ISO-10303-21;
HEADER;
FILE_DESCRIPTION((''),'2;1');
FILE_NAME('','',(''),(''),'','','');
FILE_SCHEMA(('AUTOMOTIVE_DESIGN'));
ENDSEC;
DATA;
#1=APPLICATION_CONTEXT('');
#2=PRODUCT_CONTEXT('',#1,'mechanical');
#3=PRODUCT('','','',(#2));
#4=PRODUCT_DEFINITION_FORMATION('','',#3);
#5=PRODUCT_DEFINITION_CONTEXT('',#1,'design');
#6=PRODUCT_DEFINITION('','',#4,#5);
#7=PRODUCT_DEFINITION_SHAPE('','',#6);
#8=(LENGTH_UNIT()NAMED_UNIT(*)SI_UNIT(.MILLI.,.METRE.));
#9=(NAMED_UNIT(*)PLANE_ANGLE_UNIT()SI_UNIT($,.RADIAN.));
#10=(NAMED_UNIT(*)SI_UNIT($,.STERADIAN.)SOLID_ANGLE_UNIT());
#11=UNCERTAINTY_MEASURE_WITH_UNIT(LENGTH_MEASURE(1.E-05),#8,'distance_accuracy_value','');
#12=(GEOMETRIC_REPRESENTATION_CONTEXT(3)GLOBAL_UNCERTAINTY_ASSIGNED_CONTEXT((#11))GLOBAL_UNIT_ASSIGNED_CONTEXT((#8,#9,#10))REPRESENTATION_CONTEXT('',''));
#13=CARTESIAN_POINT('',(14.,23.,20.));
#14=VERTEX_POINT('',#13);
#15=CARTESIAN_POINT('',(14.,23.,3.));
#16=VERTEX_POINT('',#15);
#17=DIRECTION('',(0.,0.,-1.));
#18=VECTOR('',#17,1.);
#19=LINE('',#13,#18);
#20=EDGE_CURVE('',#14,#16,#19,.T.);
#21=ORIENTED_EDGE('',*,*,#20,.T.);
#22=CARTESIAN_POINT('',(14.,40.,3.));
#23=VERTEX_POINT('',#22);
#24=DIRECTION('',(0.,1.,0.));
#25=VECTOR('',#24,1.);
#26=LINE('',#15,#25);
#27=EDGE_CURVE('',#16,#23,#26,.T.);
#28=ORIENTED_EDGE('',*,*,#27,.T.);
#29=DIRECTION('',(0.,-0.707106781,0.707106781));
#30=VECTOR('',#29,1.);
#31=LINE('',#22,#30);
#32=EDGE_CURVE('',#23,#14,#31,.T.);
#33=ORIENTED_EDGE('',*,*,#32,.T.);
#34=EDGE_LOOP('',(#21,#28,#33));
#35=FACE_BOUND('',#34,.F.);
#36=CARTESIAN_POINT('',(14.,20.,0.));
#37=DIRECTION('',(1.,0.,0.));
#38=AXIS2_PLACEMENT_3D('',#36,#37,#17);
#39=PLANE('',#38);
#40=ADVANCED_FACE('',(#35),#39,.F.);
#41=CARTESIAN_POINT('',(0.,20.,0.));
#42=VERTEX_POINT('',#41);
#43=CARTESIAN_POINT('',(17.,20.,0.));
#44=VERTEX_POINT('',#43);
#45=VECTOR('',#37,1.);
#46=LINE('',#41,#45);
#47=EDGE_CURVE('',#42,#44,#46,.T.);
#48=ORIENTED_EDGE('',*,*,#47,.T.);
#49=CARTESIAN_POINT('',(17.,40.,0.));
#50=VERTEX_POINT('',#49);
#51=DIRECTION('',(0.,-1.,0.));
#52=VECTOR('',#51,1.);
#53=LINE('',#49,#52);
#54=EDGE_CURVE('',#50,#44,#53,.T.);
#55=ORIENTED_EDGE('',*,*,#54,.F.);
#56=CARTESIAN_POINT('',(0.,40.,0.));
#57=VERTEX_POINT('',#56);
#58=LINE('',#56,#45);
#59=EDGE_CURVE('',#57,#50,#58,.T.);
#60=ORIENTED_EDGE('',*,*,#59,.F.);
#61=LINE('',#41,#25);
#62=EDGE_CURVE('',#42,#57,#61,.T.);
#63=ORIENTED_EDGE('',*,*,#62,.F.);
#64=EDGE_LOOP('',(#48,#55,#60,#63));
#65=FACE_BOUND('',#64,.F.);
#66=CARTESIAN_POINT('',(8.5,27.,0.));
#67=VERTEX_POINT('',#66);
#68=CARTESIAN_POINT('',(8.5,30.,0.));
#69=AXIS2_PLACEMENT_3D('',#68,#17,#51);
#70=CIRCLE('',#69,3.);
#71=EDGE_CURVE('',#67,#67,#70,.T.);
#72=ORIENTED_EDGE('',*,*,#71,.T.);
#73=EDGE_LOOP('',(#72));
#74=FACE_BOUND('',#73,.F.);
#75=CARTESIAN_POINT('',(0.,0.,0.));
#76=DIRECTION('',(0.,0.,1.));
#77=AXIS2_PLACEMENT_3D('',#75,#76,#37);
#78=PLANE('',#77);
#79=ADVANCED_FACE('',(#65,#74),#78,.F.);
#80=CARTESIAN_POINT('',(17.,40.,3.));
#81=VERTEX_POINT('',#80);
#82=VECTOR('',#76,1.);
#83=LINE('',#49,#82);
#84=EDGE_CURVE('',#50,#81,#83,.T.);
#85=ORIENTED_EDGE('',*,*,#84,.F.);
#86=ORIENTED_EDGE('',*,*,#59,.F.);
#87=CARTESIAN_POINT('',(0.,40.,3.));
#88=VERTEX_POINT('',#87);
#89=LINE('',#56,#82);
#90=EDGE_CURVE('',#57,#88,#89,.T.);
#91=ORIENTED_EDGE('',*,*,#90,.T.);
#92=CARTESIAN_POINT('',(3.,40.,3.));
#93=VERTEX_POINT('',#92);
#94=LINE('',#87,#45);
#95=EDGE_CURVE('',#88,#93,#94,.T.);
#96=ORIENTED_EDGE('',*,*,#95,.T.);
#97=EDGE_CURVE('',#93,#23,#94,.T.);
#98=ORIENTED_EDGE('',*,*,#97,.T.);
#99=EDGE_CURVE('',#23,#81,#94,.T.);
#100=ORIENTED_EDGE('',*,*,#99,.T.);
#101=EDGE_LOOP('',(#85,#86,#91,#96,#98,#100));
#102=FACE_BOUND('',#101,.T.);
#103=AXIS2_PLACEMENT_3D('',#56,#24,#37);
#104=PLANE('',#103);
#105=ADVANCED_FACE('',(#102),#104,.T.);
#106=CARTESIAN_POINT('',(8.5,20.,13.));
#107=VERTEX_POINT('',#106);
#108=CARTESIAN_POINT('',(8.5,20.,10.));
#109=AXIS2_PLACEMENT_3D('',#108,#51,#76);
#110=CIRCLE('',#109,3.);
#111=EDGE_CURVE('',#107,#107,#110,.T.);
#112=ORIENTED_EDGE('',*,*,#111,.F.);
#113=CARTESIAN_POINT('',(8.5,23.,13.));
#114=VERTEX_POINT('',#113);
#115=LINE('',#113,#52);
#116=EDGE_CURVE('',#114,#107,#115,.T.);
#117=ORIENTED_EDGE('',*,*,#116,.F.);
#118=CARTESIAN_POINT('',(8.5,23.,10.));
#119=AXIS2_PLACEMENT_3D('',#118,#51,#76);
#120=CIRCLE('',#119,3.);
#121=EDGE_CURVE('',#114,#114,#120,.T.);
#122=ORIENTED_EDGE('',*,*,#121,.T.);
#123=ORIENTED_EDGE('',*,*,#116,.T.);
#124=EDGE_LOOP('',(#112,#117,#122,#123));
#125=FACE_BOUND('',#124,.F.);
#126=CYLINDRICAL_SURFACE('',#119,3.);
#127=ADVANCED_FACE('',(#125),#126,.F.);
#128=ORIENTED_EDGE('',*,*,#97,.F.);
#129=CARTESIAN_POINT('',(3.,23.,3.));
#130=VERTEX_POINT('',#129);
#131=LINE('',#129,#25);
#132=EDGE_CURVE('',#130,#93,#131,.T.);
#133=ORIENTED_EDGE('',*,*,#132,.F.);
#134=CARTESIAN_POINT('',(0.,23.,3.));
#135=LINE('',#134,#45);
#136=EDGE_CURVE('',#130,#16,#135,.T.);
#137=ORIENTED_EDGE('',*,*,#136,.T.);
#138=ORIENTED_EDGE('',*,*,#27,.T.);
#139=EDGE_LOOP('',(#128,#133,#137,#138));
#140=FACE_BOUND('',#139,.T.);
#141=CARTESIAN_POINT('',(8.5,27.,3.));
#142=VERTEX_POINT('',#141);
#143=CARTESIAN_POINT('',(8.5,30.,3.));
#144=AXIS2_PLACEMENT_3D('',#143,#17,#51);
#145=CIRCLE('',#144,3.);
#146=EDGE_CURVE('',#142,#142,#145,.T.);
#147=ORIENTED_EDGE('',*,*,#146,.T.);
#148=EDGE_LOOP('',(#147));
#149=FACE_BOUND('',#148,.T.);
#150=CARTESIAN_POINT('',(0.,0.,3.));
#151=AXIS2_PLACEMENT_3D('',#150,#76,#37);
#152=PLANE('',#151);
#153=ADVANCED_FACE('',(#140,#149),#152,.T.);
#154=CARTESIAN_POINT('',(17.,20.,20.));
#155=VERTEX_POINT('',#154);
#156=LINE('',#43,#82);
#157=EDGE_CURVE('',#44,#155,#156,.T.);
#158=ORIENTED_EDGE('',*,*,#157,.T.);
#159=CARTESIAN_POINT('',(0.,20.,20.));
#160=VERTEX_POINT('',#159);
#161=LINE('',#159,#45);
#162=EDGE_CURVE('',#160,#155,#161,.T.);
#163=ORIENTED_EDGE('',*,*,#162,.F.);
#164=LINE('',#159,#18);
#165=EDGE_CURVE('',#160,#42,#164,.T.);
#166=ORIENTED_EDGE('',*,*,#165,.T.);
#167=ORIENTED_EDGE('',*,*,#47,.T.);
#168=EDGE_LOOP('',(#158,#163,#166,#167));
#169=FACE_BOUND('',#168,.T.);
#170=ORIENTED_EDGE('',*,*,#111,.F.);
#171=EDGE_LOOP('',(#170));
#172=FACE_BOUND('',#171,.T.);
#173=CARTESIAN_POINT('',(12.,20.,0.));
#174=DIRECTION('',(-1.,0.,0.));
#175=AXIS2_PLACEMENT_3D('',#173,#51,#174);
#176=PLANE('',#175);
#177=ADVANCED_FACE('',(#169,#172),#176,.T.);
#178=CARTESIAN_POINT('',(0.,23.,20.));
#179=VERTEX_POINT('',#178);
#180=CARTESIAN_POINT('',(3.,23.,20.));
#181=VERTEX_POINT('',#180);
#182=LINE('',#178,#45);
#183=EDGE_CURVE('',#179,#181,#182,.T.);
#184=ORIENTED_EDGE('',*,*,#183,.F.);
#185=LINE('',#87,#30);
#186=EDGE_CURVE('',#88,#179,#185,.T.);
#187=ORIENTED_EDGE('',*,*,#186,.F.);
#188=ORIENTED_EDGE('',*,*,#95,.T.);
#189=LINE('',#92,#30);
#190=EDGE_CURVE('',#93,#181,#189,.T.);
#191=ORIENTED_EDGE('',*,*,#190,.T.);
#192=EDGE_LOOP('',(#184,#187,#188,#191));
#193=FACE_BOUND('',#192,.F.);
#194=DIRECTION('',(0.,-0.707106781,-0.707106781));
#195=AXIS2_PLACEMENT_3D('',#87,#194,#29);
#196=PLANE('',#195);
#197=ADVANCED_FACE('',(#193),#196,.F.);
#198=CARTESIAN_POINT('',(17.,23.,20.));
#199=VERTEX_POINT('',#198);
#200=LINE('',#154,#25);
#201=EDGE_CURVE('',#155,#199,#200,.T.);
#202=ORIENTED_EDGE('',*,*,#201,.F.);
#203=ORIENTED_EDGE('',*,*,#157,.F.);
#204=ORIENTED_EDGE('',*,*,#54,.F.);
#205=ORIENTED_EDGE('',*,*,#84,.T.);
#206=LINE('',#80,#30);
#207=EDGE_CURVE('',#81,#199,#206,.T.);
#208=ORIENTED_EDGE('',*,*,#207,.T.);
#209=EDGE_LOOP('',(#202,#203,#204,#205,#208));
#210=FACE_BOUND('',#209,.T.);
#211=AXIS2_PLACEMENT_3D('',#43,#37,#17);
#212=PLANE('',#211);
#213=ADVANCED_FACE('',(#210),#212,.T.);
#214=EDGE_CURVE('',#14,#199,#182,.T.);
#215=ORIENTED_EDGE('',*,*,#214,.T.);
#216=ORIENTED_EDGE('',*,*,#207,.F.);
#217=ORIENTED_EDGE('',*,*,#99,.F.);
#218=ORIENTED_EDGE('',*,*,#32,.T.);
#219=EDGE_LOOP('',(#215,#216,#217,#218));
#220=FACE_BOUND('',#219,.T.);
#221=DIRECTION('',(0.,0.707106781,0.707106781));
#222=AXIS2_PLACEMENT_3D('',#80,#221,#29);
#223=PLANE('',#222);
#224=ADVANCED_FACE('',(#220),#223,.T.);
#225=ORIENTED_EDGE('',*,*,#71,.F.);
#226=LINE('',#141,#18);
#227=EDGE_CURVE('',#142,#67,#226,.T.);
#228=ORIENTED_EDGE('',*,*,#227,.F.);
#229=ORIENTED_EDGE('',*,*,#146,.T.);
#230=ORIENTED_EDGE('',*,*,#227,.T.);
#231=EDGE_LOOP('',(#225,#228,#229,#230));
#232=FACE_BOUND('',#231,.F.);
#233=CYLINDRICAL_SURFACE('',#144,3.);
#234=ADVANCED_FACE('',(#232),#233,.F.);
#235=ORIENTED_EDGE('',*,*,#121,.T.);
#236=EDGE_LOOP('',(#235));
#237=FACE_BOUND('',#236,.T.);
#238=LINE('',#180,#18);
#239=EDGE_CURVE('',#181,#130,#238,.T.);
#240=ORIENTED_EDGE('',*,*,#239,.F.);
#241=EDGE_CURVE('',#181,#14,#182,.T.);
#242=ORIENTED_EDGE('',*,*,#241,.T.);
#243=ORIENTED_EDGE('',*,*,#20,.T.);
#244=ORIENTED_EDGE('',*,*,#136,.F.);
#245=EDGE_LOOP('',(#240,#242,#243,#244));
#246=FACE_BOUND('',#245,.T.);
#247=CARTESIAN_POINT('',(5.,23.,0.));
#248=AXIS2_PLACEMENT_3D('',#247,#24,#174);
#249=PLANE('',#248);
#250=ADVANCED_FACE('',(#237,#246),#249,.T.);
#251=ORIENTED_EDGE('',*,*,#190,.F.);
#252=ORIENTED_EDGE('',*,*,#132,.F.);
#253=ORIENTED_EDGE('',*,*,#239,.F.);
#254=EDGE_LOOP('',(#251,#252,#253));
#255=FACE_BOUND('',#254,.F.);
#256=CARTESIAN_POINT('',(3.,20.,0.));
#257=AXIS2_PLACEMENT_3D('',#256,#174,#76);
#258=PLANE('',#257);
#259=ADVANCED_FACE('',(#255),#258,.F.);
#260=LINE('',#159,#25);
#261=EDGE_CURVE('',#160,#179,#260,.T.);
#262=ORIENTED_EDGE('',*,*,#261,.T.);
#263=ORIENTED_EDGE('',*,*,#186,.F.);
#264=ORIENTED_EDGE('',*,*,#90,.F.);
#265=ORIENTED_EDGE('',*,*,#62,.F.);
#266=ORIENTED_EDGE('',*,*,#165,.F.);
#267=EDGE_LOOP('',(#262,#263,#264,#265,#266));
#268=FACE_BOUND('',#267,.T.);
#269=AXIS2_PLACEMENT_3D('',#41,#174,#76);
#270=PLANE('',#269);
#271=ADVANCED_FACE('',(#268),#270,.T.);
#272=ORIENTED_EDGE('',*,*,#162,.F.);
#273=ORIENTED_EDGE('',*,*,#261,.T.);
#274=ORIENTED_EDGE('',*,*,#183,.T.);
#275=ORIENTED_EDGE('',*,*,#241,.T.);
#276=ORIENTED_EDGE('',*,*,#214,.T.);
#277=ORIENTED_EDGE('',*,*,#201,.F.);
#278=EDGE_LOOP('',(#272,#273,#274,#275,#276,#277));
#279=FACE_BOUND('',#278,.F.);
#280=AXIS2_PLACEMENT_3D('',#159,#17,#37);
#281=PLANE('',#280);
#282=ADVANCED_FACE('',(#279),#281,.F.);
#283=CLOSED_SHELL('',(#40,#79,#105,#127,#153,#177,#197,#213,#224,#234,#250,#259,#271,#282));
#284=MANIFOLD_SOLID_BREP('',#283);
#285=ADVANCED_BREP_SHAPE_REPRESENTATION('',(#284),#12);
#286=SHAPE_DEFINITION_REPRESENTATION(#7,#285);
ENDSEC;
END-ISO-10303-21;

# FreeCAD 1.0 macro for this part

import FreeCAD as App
import Part
import Sketcher
Q = App.Units.Quantity


def add_polygon(sketch, points):
    """Adds a closed chain of lines whose ends are joined by coincident constraints."""
    first, n = sketch.GeometryCount, len(points)
    for a, b in zip(points, points[1:] + points[:1]):
        sketch.addGeometry(Part.LineSegment(App.Vector(*a, 0), App.Vector(*b, 0)), False)
    for i in range(n):
        sketch.addConstraint(Sketcher.Constraint("Coincident", first + i, 2, first + (i + 1) % n, 1))

doc = App.newDocument("Part")
params = doc.addObject("Spreadsheet::Sheet", "Params")
for row, (alias, value) in enumerate([
    ("sketch1_height", "20 mm"),
    ("sketch1_width", "17 mm"),
    ("pad1_length", "3 mm"),
    ("sketch2_width", "17 mm"),
    ("pad2_length", "3 mm"),
    ("sketch3_width", "17 mm"),
    ("pad3_length", "3 mm"),
    ("sketch4_width", "17 mm"),
    ("pad4_length", "3 mm"),
    ("sketch5_diameter", "6 mm"),
    ("hole_diameter", "6 mm"),
    ("sketch6_diameter", "6 mm"),
    ("hole2_diameter", "6 mm"),
], start=1):
    params.set(f"A{row}", alias)
    params.set(f"B{row}", "=" + value)
    params.setAlias(f"B{row}", alias)

body = doc.addObject("PartDesign::Body", "Body")

sketch1 = body.newObject("Sketcher::SketchObject", "Sketch")
sketch1.AttachmentSupport = (doc.getObject("XY_Plane"), [""])
sketch1.MapMode = "FlatFace"
add_polygon(sketch1, [(0, 20), (17, 20), (17, 40), (0, 40)])
sketch1.addConstraint([
    Sketcher.Constraint("Horizontal", 0),
    Sketcher.Constraint("Vertical", 1),
    Sketcher.Constraint("Horizontal", 2),
    Sketcher.Constraint("Vertical", 3),
    Sketcher.Constraint("PointOnObject", 2, 2, -2),
    Sketcher.Constraint("DistanceY", 1, 1, 1, 2, Q("20 mm")),
    Sketcher.Constraint("DistanceY", -1, 1, 0, 2, Q("20 mm")),
    Sketcher.Constraint("DistanceX", 0, 1, 0, 2, Q("17 mm")),
])
sketch1.setExpression("Constraints[9]", "Params.sketch1_height")
sketch1.setExpression("Constraints[11]", "Params.sketch1_width")
pad1 = body.newObject("PartDesign::Pad", "Pad")
pad1.Profile = sketch1
pad1.setExpression("Length", "Params.pad1_length")

sketch2 = body.newObject("Sketcher::SketchObject", "Sketch001")
sketch2.AttachmentSupport = (doc.getObject("XZ_Plane"), [""])
sketch2.MapMode = "FlatFace"
sketch2.AttachmentOffset = App.Placement(App.Vector(0, 0, -20), App.Rotation())
add_polygon(sketch2, [(17, 20), (17, 3), (0, 3), (0, 20)])
sketch2.addConstraint([
    Sketcher.Constraint("Vertical", 0),
    Sketcher.Constraint("Horizontal", 1),
    Sketcher.Constraint("Vertical", 2),
    Sketcher.Constraint("Horizontal", 3),
    Sketcher.Constraint("PointOnObject", 1, 2, -2),
    Sketcher.Constraint("Equal", 3, 0),
    Sketcher.Constraint("DistanceX", 1, 2, 1, 1, Q("17 mm")),
    Sketcher.Constraint("DistanceY", -1, 1, 0, 2, Q("3 mm")),
])
sketch2.setExpression("Constraints[10]", "Params.sketch2_width")
pad2 = body.newObject("PartDesign::Pad", "Pad001")
pad2.Profile = sketch2
pad2.setExpression("Length", "Params.pad2_length")
pad2.Reversed = True

sketch3 = body.newObject("Sketcher::SketchObject", "Sketch002")
sketch3.AttachmentSupport = (doc.getObject("YZ_Plane"), [""])
sketch3.MapMode = "FlatFace"
add_polygon(sketch3, [(40, 3), (23, 3), (23, 20)])
sketch3.addConstraint([
    Sketcher.Constraint("Horizontal", 0),
    Sketcher.Constraint("Vertical", 1),
    Sketcher.Constraint("Equal", 0, 1),
    Sketcher.Constraint("DistanceX", 0, 2, 0, 1, Q("17 mm")),
    Sketcher.Constraint("DistanceX", -1, 1, 0, 2, Q("23 mm")),
    Sketcher.Constraint("DistanceY", -1, 1, 0, 2, Q("3 mm")),
])
sketch3.setExpression("Constraints[6]", "Params.sketch3_width")
pad3 = body.newObject("PartDesign::Pad", "Pad002")
pad3.Profile = sketch3
pad3.setExpression("Length", "Params.pad3_length")

sketch4 = body.newObject("Sketcher::SketchObject", "Sketch003")
sketch4.AttachmentSupport = (doc.getObject("YZ_Plane"), [""])
sketch4.MapMode = "FlatFace"
sketch4.AttachmentOffset = App.Placement(App.Vector(0, 0, 17), App.Rotation())
add_polygon(sketch4, [(23, 20), (23, 3), (40, 3)])
sketch4.addConstraint([
    Sketcher.Constraint("Vertical", 0),
    Sketcher.Constraint("Horizontal", 1),
    Sketcher.Constraint("Equal", 1, 0),
    Sketcher.Constraint("DistanceX", 1, 1, 1, 2, Q("17 mm")),
    Sketcher.Constraint("DistanceX", -1, 1, 0, 2, Q("23 mm")),
    Sketcher.Constraint("DistanceY", -1, 1, 0, 2, Q("3 mm")),
])
sketch4.setExpression("Constraints[6]", "Params.sketch4_width")
pad4 = body.newObject("PartDesign::Pad", "Pad003")
pad4.Profile = sketch4
pad4.setExpression("Length", "Params.pad4_length")
pad4.Reversed = True

sketch5 = body.newObject("Sketcher::SketchObject", "Sketch004")
sketch5.AttachmentSupport = (doc.getObject("XY_Plane"), [""])
sketch5.MapMode = "FlatFace"
sketch5.AttachmentOffset = App.Placement(App.Vector(0, 0, 3), App.Rotation())
sketch5.addGeometry(Part.Circle(App.Vector(8.5, 30, 0), App.Vector(0, 0, 1), 3), False)
sketch5.addConstraint([
    Sketcher.Constraint("Diameter", 0, Q("6 mm")),
    Sketcher.Constraint("DistanceY", -1, 1, 0, 3, Q("30 mm")),
    Sketcher.Constraint("DistanceX", -1, 1, 0, 3, Q("8.5 mm")),
])
sketch5.setExpression("Constraints[0]", "Params.sketch5_diameter")
doc.recompute()
hole = body.newObject("PartDesign::Hole", "Hole")
hole.Profile = sketch5
hole.ThreadType = "None"
hole.setExpression("Diameter", "Params.hole_diameter")
hole.DepthType = "ThroughAll"

sketch6 = body.newObject("Sketcher::SketchObject", "Sketch005")
sketch6.AttachmentSupport = (doc.getObject("XZ_Plane"), [""])
sketch6.MapMode = "FlatFace"
sketch6.AttachmentOffset = App.Placement(App.Vector(0, 0, -23), App.Rotation())
sketch6.addGeometry(Part.Circle(App.Vector(8.5, 10, 0), App.Vector(0, 0, 1), 3), False)
sketch6.addConstraint([
    Sketcher.Constraint("Diameter", 0, Q("6 mm")),
    Sketcher.Constraint("DistanceY", -1, 1, 0, 3, Q("10 mm")),
    Sketcher.Constraint("DistanceX", -1, 1, 0, 3, Q("8.5 mm")),
])
sketch6.setExpression("Constraints[0]", "Params.sketch6_diameter")
doc.recompute()
hole2 = body.newObject("PartDesign::Hole", "Hole001")
hole2.Profile = sketch6
hole2.ThreadType = "None"
hole2.setExpression("Diameter", "Params.hole2_diameter")
hole2.DepthType = "ThroughAll"
hole2.Reversed = True

doc.recompute()
